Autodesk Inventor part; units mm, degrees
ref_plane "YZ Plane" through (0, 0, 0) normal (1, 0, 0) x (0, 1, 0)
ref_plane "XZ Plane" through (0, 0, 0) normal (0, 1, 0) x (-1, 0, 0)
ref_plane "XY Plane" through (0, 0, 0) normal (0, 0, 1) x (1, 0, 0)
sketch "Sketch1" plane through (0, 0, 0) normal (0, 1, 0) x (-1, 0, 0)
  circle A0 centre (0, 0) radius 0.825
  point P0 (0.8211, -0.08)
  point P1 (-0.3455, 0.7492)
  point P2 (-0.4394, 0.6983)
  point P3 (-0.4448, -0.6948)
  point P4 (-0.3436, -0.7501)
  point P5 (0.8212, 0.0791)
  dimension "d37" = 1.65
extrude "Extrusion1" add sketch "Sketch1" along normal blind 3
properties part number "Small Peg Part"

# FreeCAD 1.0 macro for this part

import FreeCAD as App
import Part
import Sketcher
from FreeCAD import Vector

doc = App.newDocument("Part")
body = doc.addObject("PartDesign::Body", "Body")

sketch1 = body.newObject("Sketcher::SketchObject", "Sketch")
sketch1.AttachmentSupport = (doc.getObject("XZ_Plane"), [""])
sketch1.MapMode = "FlatFace"
sketch1.addGeometry(Part.Circle(Vector(0, 0, 0), Vector(0, 0, 1), 0.825), False)
sketch1.addConstraint(Sketcher.Constraint("Coincident", 0, 3, -1, 1))
sketch1.addConstraint(Sketcher.Constraint("Diameter", 0, 1.65))
pad1 = body.newObject("PartDesign::Pad", "Pad")
pad1.Profile = sketch1
pad1.Length = 3
pad1.Reversed = True

doc.recompute()
